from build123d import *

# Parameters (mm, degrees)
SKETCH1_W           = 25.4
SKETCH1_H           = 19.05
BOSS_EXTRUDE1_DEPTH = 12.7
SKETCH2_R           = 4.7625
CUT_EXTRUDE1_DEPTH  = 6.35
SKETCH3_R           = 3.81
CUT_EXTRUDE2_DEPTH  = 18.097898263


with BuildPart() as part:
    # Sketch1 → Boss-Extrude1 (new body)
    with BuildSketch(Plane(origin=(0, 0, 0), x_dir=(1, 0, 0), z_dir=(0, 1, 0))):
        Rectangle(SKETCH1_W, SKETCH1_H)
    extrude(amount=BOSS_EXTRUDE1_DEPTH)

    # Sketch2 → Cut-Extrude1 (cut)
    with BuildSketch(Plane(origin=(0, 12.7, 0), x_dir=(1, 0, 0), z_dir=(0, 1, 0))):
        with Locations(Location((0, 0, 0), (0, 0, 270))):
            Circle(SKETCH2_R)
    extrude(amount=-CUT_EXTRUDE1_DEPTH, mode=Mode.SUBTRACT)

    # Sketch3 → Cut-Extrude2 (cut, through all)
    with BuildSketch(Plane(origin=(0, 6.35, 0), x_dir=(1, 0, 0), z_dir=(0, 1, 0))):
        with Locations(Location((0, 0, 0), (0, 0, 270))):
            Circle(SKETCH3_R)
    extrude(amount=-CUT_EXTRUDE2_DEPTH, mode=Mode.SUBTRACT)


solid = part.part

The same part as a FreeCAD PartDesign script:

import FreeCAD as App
import Part
import Sketcher

V = App.Vector
Q = App.Units.Quantity

doc = App.newDocument("Part")
params = doc.addObject("Spreadsheet::Sheet", "Params")
for row, (alias, value) in enumerate([
    ("sketch1_width", "1 in"),
    ("sketch1_height", "0.75 in"),
    ("pad1_length", "0.5 in"),
    ("sketch2_diameter", "0.375 in"),
    ("pocket1_length", "0.25 in"),
    ("sketch3_diameter", "0.3 in"),
], start=1):
    params.set(f"A{row}", alias)
    params.set(f"B{row}", "=" + value)
    params.setAlias(f"B{row}", alias)

body = doc.addObject("PartDesign::Body", "Body")

# Sketch on XZ plane
sketch1 = body.newObject("Sketcher::SketchObject", "Sketch")
sketch1.AttachmentSupport = (doc.getObject("XZ_Plane"), [""])
sketch1.MapMode = "FlatFace"
sketch1.addGeometry(Part.LineSegment(V(-13, -10, 0), V(-13, 10, 0)), False)
sketch1.addGeometry(Part.LineSegment(V(-13, 10, 0), V(13, 10, 0)), False)
sketch1.addGeometry(Part.LineSegment(V(13, 10, 0), V(13, -10, 0)), False)
sketch1.addGeometry(Part.LineSegment(V(13, -10, 0), V(-13, -10, 0)), False)
sketch1.addConstraint(Sketcher.Constraint("Coincident", 0, 2, 1, 1))
sketch1.addConstraint(Sketcher.Constraint("Coincident", 1, 2, 2, 1))
sketch1.addConstraint(Sketcher.Constraint("Coincident", 2, 2, 3, 1))
sketch1.addConstraint(Sketcher.Constraint("Coincident", 3, 2, 0, 1))
sketch1.addConstraint(Sketcher.Constraint("Vertical", 0))
sketch1.addConstraint(Sketcher.Constraint("Horizontal", 1))
sketch1.addConstraint(Sketcher.Constraint("Vertical", 2))
sketch1.addConstraint(Sketcher.Constraint("Horizontal", 3))
sketch1.addConstraint(Sketcher.Constraint("Symmetric", 0, 2, 2, 2, -1, 1))
sketch1.addConstraint(Sketcher.Constraint("DistanceX", 1, 1, 1, 2, Q("1 in")))
sketch1.addConstraint(Sketcher.Constraint("DistanceY", 0, 1, 0, 2, Q("0.75 in")))
sketch1.setExpression("Constraints[9]", "Params.sketch1_width")
sketch1.setExpression("Constraints[10]", "Params.sketch1_height")
pad1 = body.newObject("PartDesign::Pad", "Pad")
pad1.Profile = sketch1
pad1.setExpression("Length", "Params.pad1_length")
pad1.Reversed = True

# Sketch on XZ plane
sketch2 = body.newObject("Sketcher::SketchObject", "Sketch001")
sketch2.AttachmentSupport = (doc.getObject("XZ_Plane"), [""])
sketch2.MapMode = "FlatFace"
sketch2.AttachmentOffset = App.Placement(V(0, 0, -0.5 * 25.4), App.Rotation())
sketch2.addGeometry(Part.Circle(V(0, 0, 0), V(0, 0, 1), 4.8), False)
sketch2.addConstraint(Sketcher.Constraint("Coincident", 0, 3, -1, 1))
sketch2.addConstraint(Sketcher.Constraint("Diameter", 0, Q("0.375 in")))
sketch2.setExpression("Constraints[1]", "Params.sketch2_diameter")
pocket1 = body.newObject("PartDesign::Pocket", "Pocket")
pocket1.Profile = sketch2
pocket1.setExpression("Length", "Params.pocket1_length")
pocket1.Reversed = True

# Sketch on XZ plane
sketch3 = body.newObject("Sketcher::SketchObject", "Sketch002")
sketch3.AttachmentSupport = (doc.getObject("XZ_Plane"), [""])
sketch3.MapMode = "FlatFace"
sketch3.AttachmentOffset = App.Placement(V(0, 0, -0.25 * 25.4), App.Rotation())
sketch3.addGeometry(Part.Circle(V(0, 0, 0), V(0, 0, 1), 3.8), False)
sketch3.addConstraint(Sketcher.Constraint("Coincident", 0, 3, -1, 1))
sketch3.addConstraint(Sketcher.Constraint("Diameter", 0, Q("0.3 in")))
sketch3.setExpression("Constraints[1]", "Params.sketch3_diameter")
pocket2 = body.newObject("PartDesign::Pocket", "Pocket001")
pocket2.Profile = sketch3
pocket2.Type = "ThroughAll"
pocket2.Reversed = True

doc.recompute()
